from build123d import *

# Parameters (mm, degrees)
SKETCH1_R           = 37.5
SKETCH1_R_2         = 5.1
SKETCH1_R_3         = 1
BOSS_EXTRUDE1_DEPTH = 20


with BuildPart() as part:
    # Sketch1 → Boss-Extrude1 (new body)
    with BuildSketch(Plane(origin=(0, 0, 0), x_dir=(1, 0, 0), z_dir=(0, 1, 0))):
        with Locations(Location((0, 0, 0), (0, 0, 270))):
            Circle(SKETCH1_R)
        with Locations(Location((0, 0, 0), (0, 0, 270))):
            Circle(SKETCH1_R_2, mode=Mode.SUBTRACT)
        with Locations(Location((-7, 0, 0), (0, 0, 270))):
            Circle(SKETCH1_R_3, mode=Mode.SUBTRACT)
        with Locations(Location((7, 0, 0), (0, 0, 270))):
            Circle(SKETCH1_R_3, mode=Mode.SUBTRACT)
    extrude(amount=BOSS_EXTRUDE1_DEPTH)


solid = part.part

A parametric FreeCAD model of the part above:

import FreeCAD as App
import Part
import Sketcher

V = App.Vector

doc = App.newDocument("Part")
body = doc.addObject("PartDesign::Body", "Body")

sketch1 = doc.addObject("Sketcher::SketchObject", "Sketch")
body.addObject(sketch1)
sketch1.AttachmentSupport = (doc.XZ_Plane, [""])
sketch1.MapMode = "FlatFace"
sketch1.addGeometry(Part.Circle(V(0, 0, 0), V(0, 0, 1), 37.5), False)
sketch1.addGeometry(Part.Circle(V(-7, 0, 0), V(0, 0, 1), 1), False)
sketch1.addGeometry(Part.Circle(V(0, 0, 0), V(0, 0, 1), 5.1), False)
sketch1.addGeometry(Part.Circle(V(7, 0, 0), V(0, 0, 1), 1), False)
sketch1.addConstraint(Sketcher.Constraint("Coincident", 0, 3, -1, 1))
sketch1.addConstraint(Sketcher.Constraint("Coincident", 2, 3, -1, 1))
sketch1.addConstraint(Sketcher.Constraint("Equal", 1, 3))
sketch1.addConstraint(Sketcher.Constraint("Symmetric", 1, 3, 3, 3, -1, 1))
sketch1.addConstraint(Sketcher.Constraint("PointOnObject", 1, 3, -1))
sketch1.addConstraint(Sketcher.Constraint("Diameter", 0, 75.0))
sketch1.addConstraint(Sketcher.Constraint("Diameter", 1, 2.0))
sketch1.addConstraint(Sketcher.Constraint("Diameter", 2, 10.2))
sketch1.addConstraint(Sketcher.Constraint("DistanceX", 1, 3, -1, 1, 7.0))
pad1 = doc.addObject("PartDesign::Pad", "Pad")
body.addObject(pad1)
pad1.Profile = sketch1
pad1.Length = 20
pad1.Reversed = True

doc.recompute()
